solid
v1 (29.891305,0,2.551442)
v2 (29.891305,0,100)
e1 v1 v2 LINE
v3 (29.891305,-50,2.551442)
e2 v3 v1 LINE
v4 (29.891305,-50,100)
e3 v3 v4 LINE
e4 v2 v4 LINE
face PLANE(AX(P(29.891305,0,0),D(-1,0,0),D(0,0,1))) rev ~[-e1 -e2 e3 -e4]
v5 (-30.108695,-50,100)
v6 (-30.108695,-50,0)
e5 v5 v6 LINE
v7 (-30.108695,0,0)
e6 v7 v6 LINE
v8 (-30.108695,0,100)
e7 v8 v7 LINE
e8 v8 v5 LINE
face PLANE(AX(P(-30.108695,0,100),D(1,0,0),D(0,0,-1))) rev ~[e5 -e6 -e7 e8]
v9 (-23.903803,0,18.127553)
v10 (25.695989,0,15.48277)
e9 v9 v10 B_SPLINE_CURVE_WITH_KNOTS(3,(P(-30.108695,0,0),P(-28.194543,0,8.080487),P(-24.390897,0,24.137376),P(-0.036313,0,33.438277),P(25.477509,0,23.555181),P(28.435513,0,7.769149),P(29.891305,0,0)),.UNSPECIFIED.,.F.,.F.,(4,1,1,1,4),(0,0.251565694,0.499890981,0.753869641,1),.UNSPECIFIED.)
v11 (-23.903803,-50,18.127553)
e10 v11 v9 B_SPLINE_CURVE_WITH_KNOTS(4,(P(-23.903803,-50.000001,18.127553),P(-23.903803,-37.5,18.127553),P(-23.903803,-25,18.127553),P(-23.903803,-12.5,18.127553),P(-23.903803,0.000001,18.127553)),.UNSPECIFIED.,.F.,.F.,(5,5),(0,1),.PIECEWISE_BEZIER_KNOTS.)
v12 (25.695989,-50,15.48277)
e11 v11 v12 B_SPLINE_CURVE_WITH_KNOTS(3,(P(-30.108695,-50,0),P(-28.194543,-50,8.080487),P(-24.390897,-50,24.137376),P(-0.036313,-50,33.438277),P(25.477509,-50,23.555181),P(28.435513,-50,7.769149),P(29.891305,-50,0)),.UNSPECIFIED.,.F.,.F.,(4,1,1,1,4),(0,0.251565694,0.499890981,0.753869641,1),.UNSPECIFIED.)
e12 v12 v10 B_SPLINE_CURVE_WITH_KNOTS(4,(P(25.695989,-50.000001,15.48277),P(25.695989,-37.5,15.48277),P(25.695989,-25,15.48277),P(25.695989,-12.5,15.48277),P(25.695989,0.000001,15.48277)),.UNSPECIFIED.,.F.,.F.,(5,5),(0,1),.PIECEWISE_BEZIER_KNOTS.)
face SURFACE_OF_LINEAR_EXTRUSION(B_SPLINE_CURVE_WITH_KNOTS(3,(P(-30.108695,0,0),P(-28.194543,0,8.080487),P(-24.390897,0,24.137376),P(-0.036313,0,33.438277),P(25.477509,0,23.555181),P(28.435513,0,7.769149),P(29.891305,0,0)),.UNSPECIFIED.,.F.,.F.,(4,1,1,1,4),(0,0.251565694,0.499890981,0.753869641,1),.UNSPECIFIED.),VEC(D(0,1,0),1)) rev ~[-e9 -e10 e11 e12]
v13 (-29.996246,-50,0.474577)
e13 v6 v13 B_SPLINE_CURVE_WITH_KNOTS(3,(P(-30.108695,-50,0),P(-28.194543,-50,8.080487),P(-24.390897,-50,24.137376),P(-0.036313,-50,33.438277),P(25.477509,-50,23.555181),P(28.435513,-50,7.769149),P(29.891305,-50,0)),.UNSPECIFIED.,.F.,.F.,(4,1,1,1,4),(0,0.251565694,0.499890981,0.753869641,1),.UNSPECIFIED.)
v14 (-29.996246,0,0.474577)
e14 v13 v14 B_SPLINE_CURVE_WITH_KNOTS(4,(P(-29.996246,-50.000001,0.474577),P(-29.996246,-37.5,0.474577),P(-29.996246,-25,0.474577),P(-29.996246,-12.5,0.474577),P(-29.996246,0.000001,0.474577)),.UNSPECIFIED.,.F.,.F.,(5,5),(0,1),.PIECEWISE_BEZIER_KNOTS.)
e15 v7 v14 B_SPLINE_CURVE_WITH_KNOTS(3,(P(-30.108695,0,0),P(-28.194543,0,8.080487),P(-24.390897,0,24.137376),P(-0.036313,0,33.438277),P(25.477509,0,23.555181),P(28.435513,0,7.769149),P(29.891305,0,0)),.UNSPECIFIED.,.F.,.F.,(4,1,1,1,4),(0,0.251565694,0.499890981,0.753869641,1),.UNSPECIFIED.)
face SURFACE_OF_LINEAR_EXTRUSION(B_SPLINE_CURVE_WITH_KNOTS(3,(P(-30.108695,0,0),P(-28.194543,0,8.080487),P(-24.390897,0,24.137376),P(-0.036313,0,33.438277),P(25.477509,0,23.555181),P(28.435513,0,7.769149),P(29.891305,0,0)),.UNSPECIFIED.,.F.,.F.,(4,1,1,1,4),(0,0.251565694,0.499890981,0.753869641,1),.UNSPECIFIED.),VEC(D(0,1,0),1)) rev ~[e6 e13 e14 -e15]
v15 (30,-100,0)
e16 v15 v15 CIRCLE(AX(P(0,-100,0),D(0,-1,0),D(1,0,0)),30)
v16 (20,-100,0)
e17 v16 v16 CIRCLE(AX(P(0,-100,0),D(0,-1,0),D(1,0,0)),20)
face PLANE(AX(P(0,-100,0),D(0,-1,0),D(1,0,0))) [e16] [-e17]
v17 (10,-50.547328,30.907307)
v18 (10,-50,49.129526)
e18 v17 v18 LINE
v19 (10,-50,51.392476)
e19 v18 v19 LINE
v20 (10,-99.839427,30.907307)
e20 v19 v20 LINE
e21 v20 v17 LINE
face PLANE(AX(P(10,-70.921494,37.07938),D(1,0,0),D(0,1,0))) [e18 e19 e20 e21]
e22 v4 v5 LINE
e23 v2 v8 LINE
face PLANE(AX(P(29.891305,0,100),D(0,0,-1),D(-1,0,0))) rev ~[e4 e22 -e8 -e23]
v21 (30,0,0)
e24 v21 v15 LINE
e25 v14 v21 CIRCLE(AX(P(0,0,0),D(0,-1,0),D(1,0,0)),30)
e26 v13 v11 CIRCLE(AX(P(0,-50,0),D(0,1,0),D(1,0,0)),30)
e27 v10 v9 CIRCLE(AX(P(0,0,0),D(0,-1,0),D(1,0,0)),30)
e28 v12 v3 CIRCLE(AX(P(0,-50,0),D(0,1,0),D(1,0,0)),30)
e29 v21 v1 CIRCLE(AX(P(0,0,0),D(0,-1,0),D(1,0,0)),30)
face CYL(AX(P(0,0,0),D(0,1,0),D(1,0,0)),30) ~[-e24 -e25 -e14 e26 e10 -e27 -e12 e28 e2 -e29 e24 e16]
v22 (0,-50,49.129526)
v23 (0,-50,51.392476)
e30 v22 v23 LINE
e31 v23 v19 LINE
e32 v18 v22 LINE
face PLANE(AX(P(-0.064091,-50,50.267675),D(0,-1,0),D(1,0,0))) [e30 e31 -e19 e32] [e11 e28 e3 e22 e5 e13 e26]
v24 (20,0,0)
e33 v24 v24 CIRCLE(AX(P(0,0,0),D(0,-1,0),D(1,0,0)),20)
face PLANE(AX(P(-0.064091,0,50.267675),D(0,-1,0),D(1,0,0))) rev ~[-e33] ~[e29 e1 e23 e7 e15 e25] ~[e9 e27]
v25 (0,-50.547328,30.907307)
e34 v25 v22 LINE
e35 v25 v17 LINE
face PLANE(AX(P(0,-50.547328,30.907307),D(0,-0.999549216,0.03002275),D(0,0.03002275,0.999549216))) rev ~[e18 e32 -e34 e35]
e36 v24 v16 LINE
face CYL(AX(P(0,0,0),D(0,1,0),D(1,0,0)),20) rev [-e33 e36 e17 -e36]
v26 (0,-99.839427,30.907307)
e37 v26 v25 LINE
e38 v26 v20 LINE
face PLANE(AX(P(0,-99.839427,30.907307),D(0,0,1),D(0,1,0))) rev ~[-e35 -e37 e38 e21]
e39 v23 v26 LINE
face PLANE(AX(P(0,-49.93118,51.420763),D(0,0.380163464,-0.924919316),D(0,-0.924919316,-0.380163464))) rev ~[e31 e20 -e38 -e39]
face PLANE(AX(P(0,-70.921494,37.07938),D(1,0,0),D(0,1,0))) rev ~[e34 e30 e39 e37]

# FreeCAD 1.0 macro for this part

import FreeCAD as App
import Part
import Sketcher
from FreeCAD import Vector


def add_polygon(sketch, points):
    """Adds a closed chain of lines whose ends are joined by coincident constraints."""
    first, n = sketch.GeometryCount, len(points)
    for a, b in zip(points, points[1:] + points[:1]):
        sketch.addGeometry(Part.LineSegment(App.Vector(*a, 0), App.Vector(*b, 0)), False)
    for i in range(n):
        sketch.addConstraint(Sketcher.Constraint("Coincident", first + i, 2, first + (i + 1) % n, 1))

doc = App.newDocument("Part")
params = doc.addObject("Spreadsheet::Sheet", "Params")
for row, (alias, value) in enumerate([
    ("sketch1_diameter", "60 mm"),
    ("sketch1_diameter2", "40 mm"),
    ("pad1_length", "100 mm"),
    ("sketch2_height", "100 mm"),
    ("pad2_length", "50 mm"),
    ("pad3_length", "10 mm"),
], start=1):
    params.set(f"A{row}", alias)
    params.set(f"B{row}", "=" + value)
    params.setAlias(f"B{row}", alias)

body = doc.addObject("PartDesign::Body", "Body")

sketch1 = body.newObject("Sketcher::SketchObject", "Sketch")
sketch1.AttachmentSupport = (doc.getObject("XZ_Plane"), [""])
sketch1.MapMode = "FlatFace"
sketch1.addGeometry(Part.Circle(Vector(0, 0, 0), Vector(0, 0, 1), 30), False)
sketch1.addGeometry(Part.Circle(Vector(0, 0, 0), Vector(0, 0, 1), 20), False)
sketch1.addConstraint(Sketcher.Constraint("Coincident", 0, 3, -1, 1))
sketch1.addConstraint(Sketcher.Constraint("Coincident", 1, 3, -1, 1))
sketch1.addConstraint(Sketcher.Constraint("Diameter", 0, 60.0))
sketch1.addConstraint(Sketcher.Constraint("Diameter", 1, 40.0))
sketch1.setExpression("Constraints[2]", "Params.sketch1_diameter")
sketch1.setExpression("Constraints[3]", "Params.sketch1_diameter2")
pad1 = body.newObject("PartDesign::Pad", "Pad")
pad1.Profile = sketch1
pad1.setExpression("Length", "Params.pad1_length")

sketch2 = body.newObject("Sketcher::SketchObject", "Sketch001")
sketch2.AttachmentSupport = (doc.getObject("XZ_Plane"), [""])
sketch2.MapMode = "FlatFace"
sketch2.addGeometry(Part.LineSegment(Vector(-30.108695, 100, 0), Vector(-30.108695, 0, 0)), False)
sketch2.addGeometry(Part.BSplineCurve([Vector(-30.108695, 0, 0), Vector(-28.194543, 8.080487, 0), Vector(-24.390897, 24.137376, 0), Vector(-0.036313, 33.438277, 0), Vector(25.477509, 23.555181, 0), Vector(28.435513, 7.769149, 0), Vector(29.891305, 0, 0)], [4, 1, 1, 1, 4], [0, 0.251565694, 0.499890981, 0.753869641, 1], False, 3, [1, 1, 1, 1, 1, 1, 1], False), False)
sketch2.addGeometry(Part.LineSegment(Vector(29.891305, 0, 0), Vector(29.891305, 100, 0)), False)
sketch2.addGeometry(Part.LineSegment(Vector(29.891305, 100, 0), Vector(-30.108695, 100, 0)), False)
sketch2.addConstraint(Sketcher.Constraint("Block", 1))
sketch2.addConstraint(Sketcher.Constraint("Coincident", 0, 2, 1, 1))
sketch2.addConstraint(Sketcher.Constraint("Coincident", 1, 2, 2, 1))
sketch2.addConstraint(Sketcher.Constraint("Coincident", 2, 2, 3, 1))
sketch2.addConstraint(Sketcher.Constraint("Coincident", 3, 2, 0, 1))
sketch2.addConstraint(Sketcher.Constraint("Vertical", 0))
sketch2.addConstraint(Sketcher.Constraint("Vertical", 2))
sketch2.addConstraint(Sketcher.Constraint("Horizontal", 3))
sketch2.addConstraint(Sketcher.Constraint("DistanceY", 0, 2, 0, 1, 100.0))
sketch2.setExpression("Constraints[8]", "Params.sketch2_height")
pad2 = body.newObject("PartDesign::Pad", "Pad001")
pad2.Profile = sketch2
pad2.setExpression("Length", "Params.pad2_length")

sketch3 = body.newObject("Sketcher::SketchObject", "Sketch002")
sketch3.AttachmentSupport = (doc.getObject("YZ_Plane"), [""])
sketch3.MapMode = "FlatFace"
add_polygon(sketch3, [(-100, 31), (-51, 31), (-50, 51)])
sketch3.addConstraint(Sketcher.Constraint("Horizontal", 0))
sketch3.addConstraint(Sketcher.Constraint("DistanceX", 0, 1, 0, 2, 49.292099))
sketch3.addConstraint(Sketcher.Constraint("Distance", 2, 53.959568))
sketch3.addConstraint(Sketcher.Constraint("DistanceX", 1, 2, -1, 1, 49.93118))
sketch3.addConstraint(Sketcher.Constraint("DistanceX", 0, 2, 1, 2, 0.616148))
sketch3.addConstraint(Sketcher.Constraint("DistanceY", -1, 1, 0, 2, 30.907307))
pad3 = body.newObject("PartDesign::Pad", "Pad002")
pad3.Profile = sketch3
pad3.setExpression("Length", "Params.pad3_length")

doc.recompute()
